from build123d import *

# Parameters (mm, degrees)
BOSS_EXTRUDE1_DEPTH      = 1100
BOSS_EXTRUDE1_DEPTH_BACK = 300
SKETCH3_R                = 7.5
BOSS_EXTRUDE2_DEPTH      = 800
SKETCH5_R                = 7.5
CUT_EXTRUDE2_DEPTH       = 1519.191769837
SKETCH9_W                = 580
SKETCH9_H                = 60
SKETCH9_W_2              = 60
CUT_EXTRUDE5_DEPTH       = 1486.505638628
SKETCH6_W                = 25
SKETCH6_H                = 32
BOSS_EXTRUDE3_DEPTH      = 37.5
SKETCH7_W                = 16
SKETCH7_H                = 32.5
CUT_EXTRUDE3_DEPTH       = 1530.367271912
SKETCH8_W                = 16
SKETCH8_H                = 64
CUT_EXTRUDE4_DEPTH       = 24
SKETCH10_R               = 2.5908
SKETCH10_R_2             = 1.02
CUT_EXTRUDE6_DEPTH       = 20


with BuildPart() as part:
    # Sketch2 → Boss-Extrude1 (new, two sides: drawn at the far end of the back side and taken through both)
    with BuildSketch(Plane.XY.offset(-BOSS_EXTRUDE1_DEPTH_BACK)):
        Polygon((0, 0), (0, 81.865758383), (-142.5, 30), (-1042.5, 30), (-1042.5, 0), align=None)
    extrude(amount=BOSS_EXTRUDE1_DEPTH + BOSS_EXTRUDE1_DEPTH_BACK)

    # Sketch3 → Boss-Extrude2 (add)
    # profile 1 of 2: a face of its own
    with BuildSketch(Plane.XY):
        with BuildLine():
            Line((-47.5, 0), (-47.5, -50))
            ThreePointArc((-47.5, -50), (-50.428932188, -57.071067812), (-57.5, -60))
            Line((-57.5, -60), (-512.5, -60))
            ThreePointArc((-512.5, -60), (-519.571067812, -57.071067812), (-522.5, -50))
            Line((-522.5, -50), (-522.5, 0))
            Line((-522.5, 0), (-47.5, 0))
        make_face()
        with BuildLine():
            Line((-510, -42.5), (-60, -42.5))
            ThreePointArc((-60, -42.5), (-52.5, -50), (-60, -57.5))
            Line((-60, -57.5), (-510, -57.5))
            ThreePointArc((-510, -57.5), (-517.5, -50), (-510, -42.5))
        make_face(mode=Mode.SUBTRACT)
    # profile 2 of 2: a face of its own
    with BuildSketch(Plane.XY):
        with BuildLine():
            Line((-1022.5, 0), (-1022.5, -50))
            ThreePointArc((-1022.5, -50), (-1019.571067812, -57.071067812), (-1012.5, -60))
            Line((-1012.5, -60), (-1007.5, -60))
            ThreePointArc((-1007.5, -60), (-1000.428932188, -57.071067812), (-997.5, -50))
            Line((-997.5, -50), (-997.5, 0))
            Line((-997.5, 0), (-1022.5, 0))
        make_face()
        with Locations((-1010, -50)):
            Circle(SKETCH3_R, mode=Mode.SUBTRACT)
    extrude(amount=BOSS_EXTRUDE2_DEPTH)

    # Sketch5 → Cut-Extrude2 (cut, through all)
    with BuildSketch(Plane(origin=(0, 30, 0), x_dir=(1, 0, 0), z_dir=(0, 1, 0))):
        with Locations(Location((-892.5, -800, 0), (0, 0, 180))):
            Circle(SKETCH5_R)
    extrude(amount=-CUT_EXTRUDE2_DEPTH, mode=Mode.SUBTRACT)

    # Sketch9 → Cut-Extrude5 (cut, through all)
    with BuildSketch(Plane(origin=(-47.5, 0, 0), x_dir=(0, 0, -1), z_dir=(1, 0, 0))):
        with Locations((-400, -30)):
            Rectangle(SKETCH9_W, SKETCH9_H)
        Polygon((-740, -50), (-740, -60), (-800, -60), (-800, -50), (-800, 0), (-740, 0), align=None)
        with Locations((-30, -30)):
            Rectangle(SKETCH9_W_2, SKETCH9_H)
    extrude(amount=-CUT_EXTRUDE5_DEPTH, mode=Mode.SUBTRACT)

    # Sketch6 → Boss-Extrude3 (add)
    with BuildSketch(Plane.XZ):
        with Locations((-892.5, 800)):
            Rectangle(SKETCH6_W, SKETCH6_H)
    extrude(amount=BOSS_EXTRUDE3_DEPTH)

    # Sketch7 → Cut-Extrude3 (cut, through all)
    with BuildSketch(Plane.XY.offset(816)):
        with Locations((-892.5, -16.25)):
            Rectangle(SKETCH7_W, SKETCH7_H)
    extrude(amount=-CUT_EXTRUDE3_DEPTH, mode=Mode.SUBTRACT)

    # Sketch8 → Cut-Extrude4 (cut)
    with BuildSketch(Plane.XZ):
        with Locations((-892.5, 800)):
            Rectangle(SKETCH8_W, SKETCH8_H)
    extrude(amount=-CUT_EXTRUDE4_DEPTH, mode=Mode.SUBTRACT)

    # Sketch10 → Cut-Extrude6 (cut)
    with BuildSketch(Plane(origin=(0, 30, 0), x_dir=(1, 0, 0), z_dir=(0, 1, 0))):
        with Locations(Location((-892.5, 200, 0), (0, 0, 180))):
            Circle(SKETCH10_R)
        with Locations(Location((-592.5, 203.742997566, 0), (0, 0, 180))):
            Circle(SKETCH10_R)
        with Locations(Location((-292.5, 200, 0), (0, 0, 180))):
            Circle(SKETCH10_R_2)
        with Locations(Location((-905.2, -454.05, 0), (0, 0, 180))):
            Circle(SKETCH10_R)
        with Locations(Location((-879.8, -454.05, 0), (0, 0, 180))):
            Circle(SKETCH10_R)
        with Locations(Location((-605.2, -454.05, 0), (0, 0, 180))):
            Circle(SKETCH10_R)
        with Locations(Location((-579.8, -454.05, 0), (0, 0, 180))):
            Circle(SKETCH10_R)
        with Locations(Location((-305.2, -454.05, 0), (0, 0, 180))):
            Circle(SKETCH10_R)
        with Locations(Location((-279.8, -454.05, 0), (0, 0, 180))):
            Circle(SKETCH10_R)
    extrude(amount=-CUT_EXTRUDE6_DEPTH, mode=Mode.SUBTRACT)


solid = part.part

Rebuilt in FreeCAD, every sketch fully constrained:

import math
import FreeCAD as App
import Part
import Sketcher

V = App.Vector
Q = App.Units.Quantity


def add_polygon(sketch, points):
    """Adds a closed chain of lines whose ends are joined by coincident constraints."""
    first, n = sketch.GeometryCount, len(points)
    for a, b in zip(points, points[1:] + points[:1]):
        sketch.addGeometry(Part.LineSegment(App.Vector(*a, 0), App.Vector(*b, 0)), False)
    for i in range(n):
        sketch.addConstraint(Sketcher.Constraint("Coincident", first + i, 2, first + (i + 1) % n, 1))

doc = App.newDocument("Part")
body = doc.addObject("PartDesign::Body", "Body")

sketch1 = doc.addObject("Sketcher::SketchObject", "Sketch")
body.addObject(sketch1)
sketch1.AttachmentSupport = (doc.XY_Plane, [""])
sketch1.MapMode = "FlatFace"
add_polygon(sketch1, [(0, 0), (0, 82), (-142, 30), (-1042, 30), (-1042, 0)])
sketch1.addConstraint(Sketcher.Constraint("Vertical", 0))
sketch1.addConstraint(Sketcher.Constraint("Horizontal", 2))
sketch1.addConstraint(Sketcher.Constraint("Vertical", 3))
sketch1.addConstraint(Sketcher.Constraint("Horizontal", 4))
sketch1.addConstraint(Sketcher.Constraint("Coincident", 4, 2, -1, 1))
sketch1.addConstraint(Sketcher.Constraint("DistanceX", 2, 2, 2, 1, Q("900 mm")))
sketch1.addConstraint(Sketcher.Constraint("DistanceY", 3, 2, 3, 1, Q("30 mm")))
sketch1.addConstraint(Sketcher.Constraint("Angle", 1, Q("-160 deg")))
sketch1.addConstraint(Sketcher.Constraint("DistanceX", 4, 1, 4, 2, Q("1042.5 mm")))
pad1 = doc.addObject("PartDesign::Pad", "Pad")
body.addObject(pad1)
pad1.Profile = sketch1
pad1.Type = "TwoLengths"
pad1.Length = 1100
pad1.Length2 = 300

sketch2 = doc.addObject("Sketcher::SketchObject", "Sketch001")
body.addObject(sketch2)
sketch2.AttachmentSupport = (doc.XY_Plane, [""])
sketch2.MapMode = "FlatFace"
sketch2.addGeometry(Part.LineSegment(V(-48, -50, 0), V(-48, 0, 0)), False)
sketch2.addGeometry(Part.LineSegment(V(-48, 0, 0), V(-522, 0, 0)), False)
sketch2.addGeometry(Part.LineSegment(V(-522, 0, 0), V(-522, -50, 0)), False)
sketch2.addGeometry(Part.ArcOfCircle(Part.Circle(V(-512, -50, 0), V(0, 0, 1), 10), math.radians(180), math.radians(270)), False)
sketch2.addGeometry(Part.LineSegment(V(-512, -60, 0), V(-58, -60, 0)), False)
sketch2.addGeometry(Part.ArcOfCircle(Part.Circle(V(-58, -50, 0), V(0, 0, 1), 10), math.radians(-90), math.radians(0)), False)
sketch2.addGeometry(Part.LineSegment(V(-510, -42, 0), V(-60, -42, 0)), False)
sketch2.addGeometry(Part.ArcOfCircle(Part.Circle(V(-60, -50, 0), V(0, 0, 1), 8), math.radians(-90), math.radians(90)), False)
sketch2.addGeometry(Part.LineSegment(V(-60, -58, 0), V(-510, -58, 0)), False)
sketch2.addGeometry(Part.ArcOfCircle(Part.Circle(V(-510, -50, 0), V(0, 0, 1), 8), math.radians(90), math.radians(270)), False)
sketch2.addGeometry(Part.LineSegment(V(-1022, 0, 0), V(-1022, -50, 0)), False)
sketch2.addGeometry(Part.ArcOfCircle(Part.Circle(V(-1012, -50, 0), V(0, 0, 1), 10), math.radians(180), math.radians(270)), False)
sketch2.addGeometry(Part.LineSegment(V(-1012, -60, 0), V(-1008, -60, 0)), False)
sketch2.addGeometry(Part.ArcOfCircle(Part.Circle(V(-1008, -50, 0), V(0, 0, 1), 10), math.radians(-90), math.radians(0)), False)
sketch2.addGeometry(Part.LineSegment(V(-998, -50, 0), V(-998, 0, 0)), False)
sketch2.addGeometry(Part.LineSegment(V(-998, 0, 0), V(-1022, 0, 0)), False)
sketch2.addGeometry(Part.Circle(V(-1010, -50, 0), V(0, 0, 1), 8), False)
sketch2.addConstraint(Sketcher.Constraint("Coincident", 0, 2, 1, 1))
sketch2.addConstraint(Sketcher.Constraint("Coincident", 1, 2, 2, 1))
sketch2.addConstraint(Sketcher.Constraint("Tangent", 2, 2, 3, 1))
sketch2.addConstraint(Sketcher.Constraint("Tangent", 3, 2, 4, 1))
sketch2.addConstraint(Sketcher.Constraint("Tangent", 4, 2, 5, 1))
sketch2.addConstraint(Sketcher.Constraint("Tangent", 5, 2, 0, 1))
sketch2.addConstraint(Sketcher.Constraint("Tangent", 6, 2, 7, 2))
sketch2.addConstraint(Sketcher.Constraint("Tangent", 7, 1, 8, 1))
sketch2.addConstraint(Sketcher.Constraint("Tangent", 8, 2, 9, 2))
sketch2.addConstraint(Sketcher.Constraint("Tangent", 9, 1, 6, 1))
sketch2.addConstraint(Sketcher.Constraint("Tangent", 10, 2, 11, 1))
sketch2.addConstraint(Sketcher.Constraint("Tangent", 11, 2, 12, 1))
sketch2.addConstraint(Sketcher.Constraint("Tangent", 12, 2, 13, 1))
sketch2.addConstraint(Sketcher.Constraint("Tangent", 13, 2, 14, 1))
sketch2.addConstraint(Sketcher.Constraint("Coincident", 14, 2, 15, 1))
sketch2.addConstraint(Sketcher.Constraint("Coincident", 15, 2, 10, 1))
sketch2.addConstraint(Sketcher.Constraint("Vertical", 0))
sketch2.addConstraint(Sketcher.Constraint("Horizontal", 1))
sketch2.addConstraint(Sketcher.Constraint("Vertical", 2))
sketch2.addConstraint(Sketcher.Constraint("Horizontal", 4))
sketch2.addConstraint(Sketcher.Constraint("Horizontal", 6))
sketch2.addConstraint(Sketcher.Constraint("Horizontal", 8))
sketch2.addConstraint(Sketcher.Constraint("Vertical", 10))
sketch2.addConstraint(Sketcher.Constraint("Horizontal", 12))
sketch2.addConstraint(Sketcher.Constraint("Vertical", 14))
sketch2.addConstraint(Sketcher.Constraint("Horizontal", 15))
sketch2.addConstraint(Sketcher.Constraint("Equal", 3, 5))
sketch2.addConstraint(Sketcher.Constraint("Equal", 5, 11))
sketch2.addConstraint(Sketcher.Constraint("Equal", 11, 13))
sketch2.addConstraint(Sketcher.Constraint("Equal", 9, 16))
sketch2.addConstraint(Sketcher.Constraint("PointOnObject", 0, 2, -1))
sketch2.addConstraint(Sketcher.Constraint("PointOnObject", 14, 2, -1))
sketch2.addConstraint(Sketcher.Constraint("Horizontal", 5, 3, 7, 3))
sketch2.addConstraint(Sketcher.Constraint("Horizontal", 9, 3, 11, 3))
sketch2.addConstraint(Sketcher.Constraint("Horizontal", 13, 3, 16, 3))
sketch2.addConstraint(Sketcher.Constraint("Diameter", 16, Q("15 mm")))
sketch2.addConstraint(Sketcher.Constraint("Radius", 3, Q("10 mm")))
sketch2.addConstraint(Sketcher.Constraint("DistanceX", 1, 2, 1, 1, Q("475 mm")))
sketch2.addConstraint(Sketcher.Constraint("DistanceX", 6, 1, 6, 2, Q("450 mm")))
sketch2.addConstraint(Sketcher.Constraint("DistanceX", 12, 1, 12, 2, Q("5 mm")))
sketch2.addConstraint(Sketcher.Constraint("DistanceY", 0, 1, 0, 2, Q("50 mm")))
sketch2.addConstraint(Sketcher.Constraint("DistanceX", 7, 3, -1, 1, Q("60 mm")))
sketch2.addConstraint(Sketcher.Constraint("DistanceX", 16, 3, -1, 1, Q("1010 mm")))
sketch2.addConstraint(Sketcher.Constraint("DistanceX", 11, 3, 3, 3, Q("500 mm")))
sketch2.addConstraint(Sketcher.Constraint("DistanceX", 3, 3, -1, 1, Q("512.5 mm")))
pad2 = doc.addObject("PartDesign::Pad", "Pad001")
body.addObject(pad2)
pad2.Profile = sketch2
pad2.Length = 800

sketch3 = doc.addObject("Sketcher::SketchObject", "Sketch002")
body.addObject(sketch3)
sketch3.AttachmentSupport = (doc.XZ_Plane, [""])
sketch3.MapMode = "FlatFace"
sketch3.AttachmentOffset = App.Placement(V(0, 0, -30), App.Rotation())
sketch3.addGeometry(Part.Circle(V(-892, 800, 0), V(0, 0, 1), 8), False)
sketch3.addConstraint(Sketcher.Constraint("Diameter", 0, Q("15 mm")))
sketch3.addConstraint(Sketcher.Constraint("DistanceY", -1, 1, 0, 3, Q("800 mm")))
sketch3.addConstraint(Sketcher.Constraint("DistanceX", 0, 3, -1, 1, Q("892.5 mm")))
pocket1 = doc.addObject("PartDesign::Pocket", "Pocket")
body.addObject(pocket1)
pocket1.Profile = sketch3
pocket1.Type = "ThroughAll"
pocket1.Reversed = True

sketch4 = doc.addObject("Sketcher::SketchObject", "Sketch003")
body.addObject(sketch4)
sketch4.AttachmentSupport = (doc.YZ_Plane, [""])
sketch4.MapMode = "FlatFace"
sketch4.AttachmentOffset = App.Placement(V(0, 0, -47.5), App.Rotation())
add_polygon(sketch4, [(0, 690), (-60, 690), (-60, 110), (0, 110)])
add_polygon(sketch4, [(-60, 740), (0, 740), (0, 800), (-60, 800)])
add_polygon(sketch4, [(0, 60), (-60, 60), (-60, 0), (0, 0)])
sketch4.addConstraint(Sketcher.Constraint("Horizontal", 0))
sketch4.addConstraint(Sketcher.Constraint("Vertical", 1))
sketch4.addConstraint(Sketcher.Constraint("Horizontal", 2))
sketch4.addConstraint(Sketcher.Constraint("Vertical", 3))
sketch4.addConstraint(Sketcher.Constraint("Horizontal", 4))
sketch4.addConstraint(Sketcher.Constraint("Vertical", 5))
sketch4.addConstraint(Sketcher.Constraint("Horizontal", 6))
sketch4.addConstraint(Sketcher.Constraint("Vertical", 7))
sketch4.addConstraint(Sketcher.Constraint("Horizontal", 8))
sketch4.addConstraint(Sketcher.Constraint("Vertical", 9))
sketch4.addConstraint(Sketcher.Constraint("Horizontal", 10))
sketch4.addConstraint(Sketcher.Constraint("Vertical", 11))
sketch4.addConstraint(Sketcher.Constraint("Coincident", 10, 2, -1, 1))
sketch4.addConstraint(Sketcher.Constraint("PointOnObject", 2, 2, -2))
sketch4.addConstraint(Sketcher.Constraint("PointOnObject", 4, 2, -2))
sketch4.addConstraint(Sketcher.Constraint("Vertical", 1, 2, 6, 2))
sketch4.addConstraint(Sketcher.Constraint("Vertical", 7, 2, 8, 2))
sketch4.addConstraint(Sketcher.Constraint("Equal", 10, 5))
sketch4.addConstraint(Sketcher.Constraint("Equal", 7, 9))
sketch4.addConstraint(Sketcher.Constraint("DistanceX", 0, 2, 0, 1, Q("60 mm")))
sketch4.addConstraint(Sketcher.Constraint("DistanceY", 1, 2, 1, 1, Q("580 mm")))
sketch4.addConstraint(Sketcher.Constraint("DistanceY", -1, 1, 0, 2, Q("690 mm")))
sketch4.addConstraint(Sketcher.Constraint("DistanceY", -1, 1, 4, 2, Q("740 mm")))
pocket2 = doc.addObject("PartDesign::Pocket", "Pocket001")
body.addObject(pocket2)
pocket2.Profile = sketch4
pocket2.Type = "ThroughAll"

sketch5 = doc.addObject("Sketcher::SketchObject", "Sketch004")
body.addObject(sketch5)
sketch5.AttachmentSupport = (doc.XZ_Plane, [""])
sketch5.MapMode = "FlatFace"
add_polygon(sketch5, [(-905, 816), (-905, 784), (-880, 784), (-880, 816)])
sketch5.addConstraint(Sketcher.Constraint("Vertical", 0))
sketch5.addConstraint(Sketcher.Constraint("Horizontal", 1))
sketch5.addConstraint(Sketcher.Constraint("Vertical", 2))
sketch5.addConstraint(Sketcher.Constraint("Horizontal", 3))
sketch5.addConstraint(Sketcher.Constraint("DistanceX", 1, 1, 1, 2, Q("25 mm")))
sketch5.addConstraint(Sketcher.Constraint("DistanceY", 0, 2, 0, 1, Q("32 mm")))
sketch5.addConstraint(Sketcher.Constraint("DistanceX", 0, 2, -1, 1, Q("905 mm")))
sketch5.addConstraint(Sketcher.Constraint("DistanceY", -1, 1, 0, 2, Q("784 mm")))
pad3 = doc.addObject("PartDesign::Pad", "Pad002")
body.addObject(pad3)
pad3.Profile = sketch5
pad3.Length = 37.5

sketch6 = doc.addObject("Sketcher::SketchObject", "Sketch005")
body.addObject(sketch6)
sketch6.AttachmentSupport = (doc.XY_Plane, [""])
sketch6.MapMode = "FlatFace"
sketch6.AttachmentOffset = App.Placement(V(0, 0, 816), App.Rotation())
add_polygon(sketch6, [(-900, 0), (-900, -32), (-884, -32), (-884, 0)])
sketch6.addConstraint(Sketcher.Constraint("Vertical", 0))
sketch6.addConstraint(Sketcher.Constraint("Horizontal", 1))
sketch6.addConstraint(Sketcher.Constraint("Vertical", 2))
sketch6.addConstraint(Sketcher.Constraint("Horizontal", 3))
sketch6.addConstraint(Sketcher.Constraint("PointOnObject", 2, 2, -1))
sketch6.addConstraint(Sketcher.Constraint("DistanceX", 1, 1, 1, 2, Q("16 mm")))
sketch6.addConstraint(Sketcher.Constraint("DistanceY", 0, 2, 0, 1, Q("32.5 mm")))
sketch6.addConstraint(Sketcher.Constraint("DistanceX", 0, 2, -1, 1, Q("900.5 mm")))
pocket3 = doc.addObject("PartDesign::Pocket", "Pocket002")
body.addObject(pocket3)
pocket3.Profile = sketch6
pocket3.Type = "ThroughAll"

sketch7 = doc.addObject("Sketcher::SketchObject", "Sketch006")
body.addObject(sketch7)
sketch7.AttachmentSupport = (doc.XZ_Plane, [""])
sketch7.MapMode = "FlatFace"
add_polygon(sketch7, [(-900, 832), (-900, 768), (-884, 768), (-884, 832)])
sketch7.addConstraint(Sketcher.Constraint("Vertical", 0))
sketch7.addConstraint(Sketcher.Constraint("Horizontal", 1))
sketch7.addConstraint(Sketcher.Constraint("Vertical", 2))
sketch7.addConstraint(Sketcher.Constraint("Horizontal", 3))
sketch7.addConstraint(Sketcher.Constraint("DistanceX", 1, 1, 1, 2, Q("16 mm")))
sketch7.addConstraint(Sketcher.Constraint("DistanceY", 0, 2, 0, 1, Q("64 mm")))
sketch7.addConstraint(Sketcher.Constraint("DistanceY", -1, 1, 0, 2, Q("768 mm")))
sketch7.addConstraint(Sketcher.Constraint("DistanceX", 0, 2, -1, 1, Q("900.5 mm")))
pocket4 = doc.addObject("PartDesign::Pocket", "Pocket003")
body.addObject(pocket4)
pocket4.Profile = sketch7
pocket4.Length = 24

sketch8 = doc.addObject("Sketcher::SketchObject", "Sketch007")
body.addObject(sketch8)
sketch8.AttachmentSupport = (doc.XZ_Plane, [""])
sketch8.MapMode = "FlatFace"
sketch8.AttachmentOffset = App.Placement(V(0, 0, -30), App.Rotation())
sketch8.addGeometry(Part.Circle(V(-892.5, -200, 0), V(0, 0, 1), 2.6), False)
sketch8.addGeometry(Part.Circle(V(-592.5, -203.7, 0), V(0, 0, 1), 2.6), False)
sketch8.addGeometry(Part.Circle(V(-292.5, -200, 0), V(0, 0, 1), 1), False)
sketch8.addGeometry(Part.Circle(V(-905.2, 454.1, 0), V(0, 0, 1), 2.6), False)
sketch8.addGeometry(Part.Circle(V(-879.8, 454.1, 0), V(0, 0, 1), 2.6), False)
sketch8.addGeometry(Part.Circle(V(-605.2, 454.1, 0), V(0, 0, 1), 2.6), False)
sketch8.addGeometry(Part.Circle(V(-579.8, 454.1, 0), V(0, 0, 1), 2.6), False)
sketch8.addGeometry(Part.Circle(V(-305.2, 454.1, 0), V(0, 0, 1), 2.6), False)
sketch8.addGeometry(Part.Circle(V(-279.8, 454.1, 0), V(0, 0, 1), 2.6), False)
sketch8.addConstraint(Sketcher.Constraint("Equal", 0, 1))
sketch8.addConstraint(Sketcher.Constraint("Equal", 1, 3))
sketch8.addConstraint(Sketcher.Constraint("Equal", 3, 4))
sketch8.addConstraint(Sketcher.Constraint("Equal", 4, 5))
sketch8.addConstraint(Sketcher.Constraint("Equal", 5, 6))
sketch8.addConstraint(Sketcher.Constraint("Equal", 6, 7))
sketch8.addConstraint(Sketcher.Constraint("Equal", 7, 8))
sketch8.addConstraint(Sketcher.Constraint("Horizontal", 0, 3, 2, 3))
sketch8.addConstraint(Sketcher.Constraint("Horizontal", 3, 3, 4, 3))
sketch8.addConstraint(Sketcher.Constraint("Horizontal", 4, 3, 5, 3))
sketch8.addConstraint(Sketcher.Constraint("Horizontal", 5, 3, 6, 3))
sketch8.addConstraint(Sketcher.Constraint("Horizontal", 6, 3, 7, 3))
sketch8.addConstraint(Sketcher.Constraint("Horizontal", 7, 3, 8, 3))
sketch8.addConstraint(Sketcher.Constraint("Diameter", 2, Q("2.04 mm")))
sketch8.addConstraint(Sketcher.Constraint("DistanceY", 0, 3, -1, 1, Q("200 mm")))
sketch8.addConstraint(Sketcher.Constraint("DistanceX", 0, 3, 1, 3, Q("300 mm")))
sketch8.addConstraint(Sketcher.Constraint("DistanceX", 1, 3, 2, 3, Q("300 mm")))
sketch8.addConstraint(Sketcher.Constraint("DistanceX", 3, 3, 5, 3, Q("300 mm")))
sketch8.addConstraint(Sketcher.Constraint("DistanceX", 4, 3, 6, 3, Q("300 mm")))
sketch8.addConstraint(Sketcher.Constraint("DistanceX", 5, 3, 7, 3, Q("300 mm")))
sketch8.addConstraint(Sketcher.Constraint("DistanceX", 6, 3, 8, 3, Q("300 mm")))
sketch8.addConstraint(Sketcher.Constraint("Diameter", 0, Q("5.1816 mm")))
sketch8.addConstraint(Sketcher.Constraint("DistanceX", 0, 3, -1, 1, Q("892.5 mm")))
sketch8.addConstraint(Sketcher.Constraint("DistanceX", 3, 3, -1, 1, Q("905.2 mm")))
sketch8.addConstraint(Sketcher.Constraint("DistanceX", 4, 3, -1, 1, Q("879.8 mm")))
sketch8.addConstraint(Sketcher.Constraint("DistanceY", -1, 1, 3, 3, Q("454.05 mm")))
sketch8.addConstraint(Sketcher.Constraint("DistanceY", 1, 3, -1, 1, Q("203.742998 mm")))
pocket5 = doc.addObject("PartDesign::Pocket", "Pocket004")
body.addObject(pocket5)
pocket5.Profile = sketch8
pocket5.Length = 20
pocket5.Reversed = True

doc.recompute()
